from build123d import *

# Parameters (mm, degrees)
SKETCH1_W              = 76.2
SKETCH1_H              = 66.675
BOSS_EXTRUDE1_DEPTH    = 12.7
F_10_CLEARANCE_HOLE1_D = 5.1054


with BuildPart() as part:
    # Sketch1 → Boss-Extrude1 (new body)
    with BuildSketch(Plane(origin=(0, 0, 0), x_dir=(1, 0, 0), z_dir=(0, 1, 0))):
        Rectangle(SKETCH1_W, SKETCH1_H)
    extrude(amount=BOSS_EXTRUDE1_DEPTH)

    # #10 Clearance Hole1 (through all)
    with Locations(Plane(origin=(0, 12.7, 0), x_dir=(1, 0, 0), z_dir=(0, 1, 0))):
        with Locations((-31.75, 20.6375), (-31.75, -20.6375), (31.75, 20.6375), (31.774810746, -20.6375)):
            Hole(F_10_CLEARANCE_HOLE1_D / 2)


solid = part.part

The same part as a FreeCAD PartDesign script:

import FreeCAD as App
import Part
import Sketcher

V = App.Vector
Q = App.Units.Quantity

doc = App.newDocument("Part")
params = doc.addObject("Spreadsheet::Sheet", "Params")
for row, (alias, value) in enumerate([
    ("sketch1_width", "3 in"),
    ("sketch1_height", "2.625 in"),
    ("pad1_length", "0.5 in"),
    ("sketch2_diameter", "0.201 in"),
    ("hole_diameter", "0.201 in"),
], start=1):
    params.set(f"A{row}", alias)
    params.set(f"B{row}", "=" + value)
    params.setAlias(f"B{row}", alias)

body = doc.addObject("PartDesign::Body", "Body")

# Sketch on XZ plane
sketch1 = body.newObject("Sketcher::SketchObject", "Sketch")
sketch1.AttachmentSupport = (doc.getObject("XZ_Plane"), [""])
sketch1.MapMode = "FlatFace"
sketch1.addGeometry([
    Part.LineSegment(V(-38, -33, 0), V(-38, 33, 0)),
    Part.LineSegment(V(-38, 33, 0), V(38, 33, 0)),
    Part.LineSegment(V(38, 33, 0), V(38, -33, 0)),
    Part.LineSegment(V(38, -33, 0), V(-38, -33, 0)),
], False)
sketch1.addConstraint([
    Sketcher.Constraint("Coincident", 0, 2, 1, 1),
    Sketcher.Constraint("Coincident", 1, 2, 2, 1),
    Sketcher.Constraint("Coincident", 2, 2, 3, 1),
    Sketcher.Constraint("Coincident", 3, 2, 0, 1),
    Sketcher.Constraint("Vertical", 0),
    Sketcher.Constraint("Horizontal", 1),
    Sketcher.Constraint("Vertical", 2),
    Sketcher.Constraint("Horizontal", 3),
    Sketcher.Constraint("Symmetric", 0, 2, 2, 2, -1, 1),
    Sketcher.Constraint("DistanceX", 1, 1, 1, 2, Q("3 in")),
    Sketcher.Constraint("DistanceY", 0, 1, 0, 2, Q("2.625 in")),
])
sketch1.setExpression("Constraints[9]", "Params.sketch1_width")
sketch1.setExpression("Constraints[10]", "Params.sketch1_height")
pad1 = body.newObject("PartDesign::Pad", "Pad")
pad1.Profile = sketch1
pad1.setExpression("Length", "Params.pad1_length")
pad1.Reversed = True

# Sketch on XZ plane
sketch2 = body.newObject("Sketcher::SketchObject", "Sketch001")
sketch2.AttachmentSupport = (doc.getObject("XZ_Plane"), [""])
sketch2.MapMode = "FlatFace"
sketch2.AttachmentOffset = App.Placement(V(0, 0, -0.5 * 25.4), App.Rotation())
sketch2.addGeometry([
    Part.Circle(V(-31.8, -20.6, 0), V(0, 0, 1), 2.6),
    Part.Circle(V(-31.8, 20.6, 0), V(0, 0, 1), 2.6),
    Part.Circle(V(31.8, -20.6, 0), V(0, 0, 1), 2.6),
    Part.Circle(V(31.8, 20.6, 0), V(0, 0, 1), 2.6),
], False)
sketch2.addConstraint([
    Sketcher.Constraint("Equal", 0, 1),
    Sketcher.Constraint("Equal", 1, 2),
    Sketcher.Constraint("Equal", 2, 3),
    Sketcher.Constraint("Symmetric", 1, 3, 2, 3, -1, 1),
    Sketcher.Constraint("Symmetric", 0, 3, 2, 3, -2),
    Sketcher.Constraint("Horizontal", 1, 3, 3, 3),
    Sketcher.Constraint("Diameter", 0, Q("0.201 in")),
    Sketcher.Constraint("DistanceX", 0, 3, 2, 3, Q("2.5 in")),
    Sketcher.Constraint("DistanceY", 0, 3, -1, 1, Q("0.8125 in")),
    Sketcher.Constraint("DistanceX", -1, 1, 3, 3, Q("31.774811 mm")),
])
sketch2.setExpression("Constraints[6]", "Params.sketch2_diameter")
doc.recompute()
hole = body.newObject("PartDesign::Hole", "Hole")
hole.Profile = sketch2
hole.ThreadType = "None"
hole.setExpression("Diameter", "Params.hole_diameter")
hole.DepthType = "ThroughAll"
hole.Reversed = True

doc.recompute()
